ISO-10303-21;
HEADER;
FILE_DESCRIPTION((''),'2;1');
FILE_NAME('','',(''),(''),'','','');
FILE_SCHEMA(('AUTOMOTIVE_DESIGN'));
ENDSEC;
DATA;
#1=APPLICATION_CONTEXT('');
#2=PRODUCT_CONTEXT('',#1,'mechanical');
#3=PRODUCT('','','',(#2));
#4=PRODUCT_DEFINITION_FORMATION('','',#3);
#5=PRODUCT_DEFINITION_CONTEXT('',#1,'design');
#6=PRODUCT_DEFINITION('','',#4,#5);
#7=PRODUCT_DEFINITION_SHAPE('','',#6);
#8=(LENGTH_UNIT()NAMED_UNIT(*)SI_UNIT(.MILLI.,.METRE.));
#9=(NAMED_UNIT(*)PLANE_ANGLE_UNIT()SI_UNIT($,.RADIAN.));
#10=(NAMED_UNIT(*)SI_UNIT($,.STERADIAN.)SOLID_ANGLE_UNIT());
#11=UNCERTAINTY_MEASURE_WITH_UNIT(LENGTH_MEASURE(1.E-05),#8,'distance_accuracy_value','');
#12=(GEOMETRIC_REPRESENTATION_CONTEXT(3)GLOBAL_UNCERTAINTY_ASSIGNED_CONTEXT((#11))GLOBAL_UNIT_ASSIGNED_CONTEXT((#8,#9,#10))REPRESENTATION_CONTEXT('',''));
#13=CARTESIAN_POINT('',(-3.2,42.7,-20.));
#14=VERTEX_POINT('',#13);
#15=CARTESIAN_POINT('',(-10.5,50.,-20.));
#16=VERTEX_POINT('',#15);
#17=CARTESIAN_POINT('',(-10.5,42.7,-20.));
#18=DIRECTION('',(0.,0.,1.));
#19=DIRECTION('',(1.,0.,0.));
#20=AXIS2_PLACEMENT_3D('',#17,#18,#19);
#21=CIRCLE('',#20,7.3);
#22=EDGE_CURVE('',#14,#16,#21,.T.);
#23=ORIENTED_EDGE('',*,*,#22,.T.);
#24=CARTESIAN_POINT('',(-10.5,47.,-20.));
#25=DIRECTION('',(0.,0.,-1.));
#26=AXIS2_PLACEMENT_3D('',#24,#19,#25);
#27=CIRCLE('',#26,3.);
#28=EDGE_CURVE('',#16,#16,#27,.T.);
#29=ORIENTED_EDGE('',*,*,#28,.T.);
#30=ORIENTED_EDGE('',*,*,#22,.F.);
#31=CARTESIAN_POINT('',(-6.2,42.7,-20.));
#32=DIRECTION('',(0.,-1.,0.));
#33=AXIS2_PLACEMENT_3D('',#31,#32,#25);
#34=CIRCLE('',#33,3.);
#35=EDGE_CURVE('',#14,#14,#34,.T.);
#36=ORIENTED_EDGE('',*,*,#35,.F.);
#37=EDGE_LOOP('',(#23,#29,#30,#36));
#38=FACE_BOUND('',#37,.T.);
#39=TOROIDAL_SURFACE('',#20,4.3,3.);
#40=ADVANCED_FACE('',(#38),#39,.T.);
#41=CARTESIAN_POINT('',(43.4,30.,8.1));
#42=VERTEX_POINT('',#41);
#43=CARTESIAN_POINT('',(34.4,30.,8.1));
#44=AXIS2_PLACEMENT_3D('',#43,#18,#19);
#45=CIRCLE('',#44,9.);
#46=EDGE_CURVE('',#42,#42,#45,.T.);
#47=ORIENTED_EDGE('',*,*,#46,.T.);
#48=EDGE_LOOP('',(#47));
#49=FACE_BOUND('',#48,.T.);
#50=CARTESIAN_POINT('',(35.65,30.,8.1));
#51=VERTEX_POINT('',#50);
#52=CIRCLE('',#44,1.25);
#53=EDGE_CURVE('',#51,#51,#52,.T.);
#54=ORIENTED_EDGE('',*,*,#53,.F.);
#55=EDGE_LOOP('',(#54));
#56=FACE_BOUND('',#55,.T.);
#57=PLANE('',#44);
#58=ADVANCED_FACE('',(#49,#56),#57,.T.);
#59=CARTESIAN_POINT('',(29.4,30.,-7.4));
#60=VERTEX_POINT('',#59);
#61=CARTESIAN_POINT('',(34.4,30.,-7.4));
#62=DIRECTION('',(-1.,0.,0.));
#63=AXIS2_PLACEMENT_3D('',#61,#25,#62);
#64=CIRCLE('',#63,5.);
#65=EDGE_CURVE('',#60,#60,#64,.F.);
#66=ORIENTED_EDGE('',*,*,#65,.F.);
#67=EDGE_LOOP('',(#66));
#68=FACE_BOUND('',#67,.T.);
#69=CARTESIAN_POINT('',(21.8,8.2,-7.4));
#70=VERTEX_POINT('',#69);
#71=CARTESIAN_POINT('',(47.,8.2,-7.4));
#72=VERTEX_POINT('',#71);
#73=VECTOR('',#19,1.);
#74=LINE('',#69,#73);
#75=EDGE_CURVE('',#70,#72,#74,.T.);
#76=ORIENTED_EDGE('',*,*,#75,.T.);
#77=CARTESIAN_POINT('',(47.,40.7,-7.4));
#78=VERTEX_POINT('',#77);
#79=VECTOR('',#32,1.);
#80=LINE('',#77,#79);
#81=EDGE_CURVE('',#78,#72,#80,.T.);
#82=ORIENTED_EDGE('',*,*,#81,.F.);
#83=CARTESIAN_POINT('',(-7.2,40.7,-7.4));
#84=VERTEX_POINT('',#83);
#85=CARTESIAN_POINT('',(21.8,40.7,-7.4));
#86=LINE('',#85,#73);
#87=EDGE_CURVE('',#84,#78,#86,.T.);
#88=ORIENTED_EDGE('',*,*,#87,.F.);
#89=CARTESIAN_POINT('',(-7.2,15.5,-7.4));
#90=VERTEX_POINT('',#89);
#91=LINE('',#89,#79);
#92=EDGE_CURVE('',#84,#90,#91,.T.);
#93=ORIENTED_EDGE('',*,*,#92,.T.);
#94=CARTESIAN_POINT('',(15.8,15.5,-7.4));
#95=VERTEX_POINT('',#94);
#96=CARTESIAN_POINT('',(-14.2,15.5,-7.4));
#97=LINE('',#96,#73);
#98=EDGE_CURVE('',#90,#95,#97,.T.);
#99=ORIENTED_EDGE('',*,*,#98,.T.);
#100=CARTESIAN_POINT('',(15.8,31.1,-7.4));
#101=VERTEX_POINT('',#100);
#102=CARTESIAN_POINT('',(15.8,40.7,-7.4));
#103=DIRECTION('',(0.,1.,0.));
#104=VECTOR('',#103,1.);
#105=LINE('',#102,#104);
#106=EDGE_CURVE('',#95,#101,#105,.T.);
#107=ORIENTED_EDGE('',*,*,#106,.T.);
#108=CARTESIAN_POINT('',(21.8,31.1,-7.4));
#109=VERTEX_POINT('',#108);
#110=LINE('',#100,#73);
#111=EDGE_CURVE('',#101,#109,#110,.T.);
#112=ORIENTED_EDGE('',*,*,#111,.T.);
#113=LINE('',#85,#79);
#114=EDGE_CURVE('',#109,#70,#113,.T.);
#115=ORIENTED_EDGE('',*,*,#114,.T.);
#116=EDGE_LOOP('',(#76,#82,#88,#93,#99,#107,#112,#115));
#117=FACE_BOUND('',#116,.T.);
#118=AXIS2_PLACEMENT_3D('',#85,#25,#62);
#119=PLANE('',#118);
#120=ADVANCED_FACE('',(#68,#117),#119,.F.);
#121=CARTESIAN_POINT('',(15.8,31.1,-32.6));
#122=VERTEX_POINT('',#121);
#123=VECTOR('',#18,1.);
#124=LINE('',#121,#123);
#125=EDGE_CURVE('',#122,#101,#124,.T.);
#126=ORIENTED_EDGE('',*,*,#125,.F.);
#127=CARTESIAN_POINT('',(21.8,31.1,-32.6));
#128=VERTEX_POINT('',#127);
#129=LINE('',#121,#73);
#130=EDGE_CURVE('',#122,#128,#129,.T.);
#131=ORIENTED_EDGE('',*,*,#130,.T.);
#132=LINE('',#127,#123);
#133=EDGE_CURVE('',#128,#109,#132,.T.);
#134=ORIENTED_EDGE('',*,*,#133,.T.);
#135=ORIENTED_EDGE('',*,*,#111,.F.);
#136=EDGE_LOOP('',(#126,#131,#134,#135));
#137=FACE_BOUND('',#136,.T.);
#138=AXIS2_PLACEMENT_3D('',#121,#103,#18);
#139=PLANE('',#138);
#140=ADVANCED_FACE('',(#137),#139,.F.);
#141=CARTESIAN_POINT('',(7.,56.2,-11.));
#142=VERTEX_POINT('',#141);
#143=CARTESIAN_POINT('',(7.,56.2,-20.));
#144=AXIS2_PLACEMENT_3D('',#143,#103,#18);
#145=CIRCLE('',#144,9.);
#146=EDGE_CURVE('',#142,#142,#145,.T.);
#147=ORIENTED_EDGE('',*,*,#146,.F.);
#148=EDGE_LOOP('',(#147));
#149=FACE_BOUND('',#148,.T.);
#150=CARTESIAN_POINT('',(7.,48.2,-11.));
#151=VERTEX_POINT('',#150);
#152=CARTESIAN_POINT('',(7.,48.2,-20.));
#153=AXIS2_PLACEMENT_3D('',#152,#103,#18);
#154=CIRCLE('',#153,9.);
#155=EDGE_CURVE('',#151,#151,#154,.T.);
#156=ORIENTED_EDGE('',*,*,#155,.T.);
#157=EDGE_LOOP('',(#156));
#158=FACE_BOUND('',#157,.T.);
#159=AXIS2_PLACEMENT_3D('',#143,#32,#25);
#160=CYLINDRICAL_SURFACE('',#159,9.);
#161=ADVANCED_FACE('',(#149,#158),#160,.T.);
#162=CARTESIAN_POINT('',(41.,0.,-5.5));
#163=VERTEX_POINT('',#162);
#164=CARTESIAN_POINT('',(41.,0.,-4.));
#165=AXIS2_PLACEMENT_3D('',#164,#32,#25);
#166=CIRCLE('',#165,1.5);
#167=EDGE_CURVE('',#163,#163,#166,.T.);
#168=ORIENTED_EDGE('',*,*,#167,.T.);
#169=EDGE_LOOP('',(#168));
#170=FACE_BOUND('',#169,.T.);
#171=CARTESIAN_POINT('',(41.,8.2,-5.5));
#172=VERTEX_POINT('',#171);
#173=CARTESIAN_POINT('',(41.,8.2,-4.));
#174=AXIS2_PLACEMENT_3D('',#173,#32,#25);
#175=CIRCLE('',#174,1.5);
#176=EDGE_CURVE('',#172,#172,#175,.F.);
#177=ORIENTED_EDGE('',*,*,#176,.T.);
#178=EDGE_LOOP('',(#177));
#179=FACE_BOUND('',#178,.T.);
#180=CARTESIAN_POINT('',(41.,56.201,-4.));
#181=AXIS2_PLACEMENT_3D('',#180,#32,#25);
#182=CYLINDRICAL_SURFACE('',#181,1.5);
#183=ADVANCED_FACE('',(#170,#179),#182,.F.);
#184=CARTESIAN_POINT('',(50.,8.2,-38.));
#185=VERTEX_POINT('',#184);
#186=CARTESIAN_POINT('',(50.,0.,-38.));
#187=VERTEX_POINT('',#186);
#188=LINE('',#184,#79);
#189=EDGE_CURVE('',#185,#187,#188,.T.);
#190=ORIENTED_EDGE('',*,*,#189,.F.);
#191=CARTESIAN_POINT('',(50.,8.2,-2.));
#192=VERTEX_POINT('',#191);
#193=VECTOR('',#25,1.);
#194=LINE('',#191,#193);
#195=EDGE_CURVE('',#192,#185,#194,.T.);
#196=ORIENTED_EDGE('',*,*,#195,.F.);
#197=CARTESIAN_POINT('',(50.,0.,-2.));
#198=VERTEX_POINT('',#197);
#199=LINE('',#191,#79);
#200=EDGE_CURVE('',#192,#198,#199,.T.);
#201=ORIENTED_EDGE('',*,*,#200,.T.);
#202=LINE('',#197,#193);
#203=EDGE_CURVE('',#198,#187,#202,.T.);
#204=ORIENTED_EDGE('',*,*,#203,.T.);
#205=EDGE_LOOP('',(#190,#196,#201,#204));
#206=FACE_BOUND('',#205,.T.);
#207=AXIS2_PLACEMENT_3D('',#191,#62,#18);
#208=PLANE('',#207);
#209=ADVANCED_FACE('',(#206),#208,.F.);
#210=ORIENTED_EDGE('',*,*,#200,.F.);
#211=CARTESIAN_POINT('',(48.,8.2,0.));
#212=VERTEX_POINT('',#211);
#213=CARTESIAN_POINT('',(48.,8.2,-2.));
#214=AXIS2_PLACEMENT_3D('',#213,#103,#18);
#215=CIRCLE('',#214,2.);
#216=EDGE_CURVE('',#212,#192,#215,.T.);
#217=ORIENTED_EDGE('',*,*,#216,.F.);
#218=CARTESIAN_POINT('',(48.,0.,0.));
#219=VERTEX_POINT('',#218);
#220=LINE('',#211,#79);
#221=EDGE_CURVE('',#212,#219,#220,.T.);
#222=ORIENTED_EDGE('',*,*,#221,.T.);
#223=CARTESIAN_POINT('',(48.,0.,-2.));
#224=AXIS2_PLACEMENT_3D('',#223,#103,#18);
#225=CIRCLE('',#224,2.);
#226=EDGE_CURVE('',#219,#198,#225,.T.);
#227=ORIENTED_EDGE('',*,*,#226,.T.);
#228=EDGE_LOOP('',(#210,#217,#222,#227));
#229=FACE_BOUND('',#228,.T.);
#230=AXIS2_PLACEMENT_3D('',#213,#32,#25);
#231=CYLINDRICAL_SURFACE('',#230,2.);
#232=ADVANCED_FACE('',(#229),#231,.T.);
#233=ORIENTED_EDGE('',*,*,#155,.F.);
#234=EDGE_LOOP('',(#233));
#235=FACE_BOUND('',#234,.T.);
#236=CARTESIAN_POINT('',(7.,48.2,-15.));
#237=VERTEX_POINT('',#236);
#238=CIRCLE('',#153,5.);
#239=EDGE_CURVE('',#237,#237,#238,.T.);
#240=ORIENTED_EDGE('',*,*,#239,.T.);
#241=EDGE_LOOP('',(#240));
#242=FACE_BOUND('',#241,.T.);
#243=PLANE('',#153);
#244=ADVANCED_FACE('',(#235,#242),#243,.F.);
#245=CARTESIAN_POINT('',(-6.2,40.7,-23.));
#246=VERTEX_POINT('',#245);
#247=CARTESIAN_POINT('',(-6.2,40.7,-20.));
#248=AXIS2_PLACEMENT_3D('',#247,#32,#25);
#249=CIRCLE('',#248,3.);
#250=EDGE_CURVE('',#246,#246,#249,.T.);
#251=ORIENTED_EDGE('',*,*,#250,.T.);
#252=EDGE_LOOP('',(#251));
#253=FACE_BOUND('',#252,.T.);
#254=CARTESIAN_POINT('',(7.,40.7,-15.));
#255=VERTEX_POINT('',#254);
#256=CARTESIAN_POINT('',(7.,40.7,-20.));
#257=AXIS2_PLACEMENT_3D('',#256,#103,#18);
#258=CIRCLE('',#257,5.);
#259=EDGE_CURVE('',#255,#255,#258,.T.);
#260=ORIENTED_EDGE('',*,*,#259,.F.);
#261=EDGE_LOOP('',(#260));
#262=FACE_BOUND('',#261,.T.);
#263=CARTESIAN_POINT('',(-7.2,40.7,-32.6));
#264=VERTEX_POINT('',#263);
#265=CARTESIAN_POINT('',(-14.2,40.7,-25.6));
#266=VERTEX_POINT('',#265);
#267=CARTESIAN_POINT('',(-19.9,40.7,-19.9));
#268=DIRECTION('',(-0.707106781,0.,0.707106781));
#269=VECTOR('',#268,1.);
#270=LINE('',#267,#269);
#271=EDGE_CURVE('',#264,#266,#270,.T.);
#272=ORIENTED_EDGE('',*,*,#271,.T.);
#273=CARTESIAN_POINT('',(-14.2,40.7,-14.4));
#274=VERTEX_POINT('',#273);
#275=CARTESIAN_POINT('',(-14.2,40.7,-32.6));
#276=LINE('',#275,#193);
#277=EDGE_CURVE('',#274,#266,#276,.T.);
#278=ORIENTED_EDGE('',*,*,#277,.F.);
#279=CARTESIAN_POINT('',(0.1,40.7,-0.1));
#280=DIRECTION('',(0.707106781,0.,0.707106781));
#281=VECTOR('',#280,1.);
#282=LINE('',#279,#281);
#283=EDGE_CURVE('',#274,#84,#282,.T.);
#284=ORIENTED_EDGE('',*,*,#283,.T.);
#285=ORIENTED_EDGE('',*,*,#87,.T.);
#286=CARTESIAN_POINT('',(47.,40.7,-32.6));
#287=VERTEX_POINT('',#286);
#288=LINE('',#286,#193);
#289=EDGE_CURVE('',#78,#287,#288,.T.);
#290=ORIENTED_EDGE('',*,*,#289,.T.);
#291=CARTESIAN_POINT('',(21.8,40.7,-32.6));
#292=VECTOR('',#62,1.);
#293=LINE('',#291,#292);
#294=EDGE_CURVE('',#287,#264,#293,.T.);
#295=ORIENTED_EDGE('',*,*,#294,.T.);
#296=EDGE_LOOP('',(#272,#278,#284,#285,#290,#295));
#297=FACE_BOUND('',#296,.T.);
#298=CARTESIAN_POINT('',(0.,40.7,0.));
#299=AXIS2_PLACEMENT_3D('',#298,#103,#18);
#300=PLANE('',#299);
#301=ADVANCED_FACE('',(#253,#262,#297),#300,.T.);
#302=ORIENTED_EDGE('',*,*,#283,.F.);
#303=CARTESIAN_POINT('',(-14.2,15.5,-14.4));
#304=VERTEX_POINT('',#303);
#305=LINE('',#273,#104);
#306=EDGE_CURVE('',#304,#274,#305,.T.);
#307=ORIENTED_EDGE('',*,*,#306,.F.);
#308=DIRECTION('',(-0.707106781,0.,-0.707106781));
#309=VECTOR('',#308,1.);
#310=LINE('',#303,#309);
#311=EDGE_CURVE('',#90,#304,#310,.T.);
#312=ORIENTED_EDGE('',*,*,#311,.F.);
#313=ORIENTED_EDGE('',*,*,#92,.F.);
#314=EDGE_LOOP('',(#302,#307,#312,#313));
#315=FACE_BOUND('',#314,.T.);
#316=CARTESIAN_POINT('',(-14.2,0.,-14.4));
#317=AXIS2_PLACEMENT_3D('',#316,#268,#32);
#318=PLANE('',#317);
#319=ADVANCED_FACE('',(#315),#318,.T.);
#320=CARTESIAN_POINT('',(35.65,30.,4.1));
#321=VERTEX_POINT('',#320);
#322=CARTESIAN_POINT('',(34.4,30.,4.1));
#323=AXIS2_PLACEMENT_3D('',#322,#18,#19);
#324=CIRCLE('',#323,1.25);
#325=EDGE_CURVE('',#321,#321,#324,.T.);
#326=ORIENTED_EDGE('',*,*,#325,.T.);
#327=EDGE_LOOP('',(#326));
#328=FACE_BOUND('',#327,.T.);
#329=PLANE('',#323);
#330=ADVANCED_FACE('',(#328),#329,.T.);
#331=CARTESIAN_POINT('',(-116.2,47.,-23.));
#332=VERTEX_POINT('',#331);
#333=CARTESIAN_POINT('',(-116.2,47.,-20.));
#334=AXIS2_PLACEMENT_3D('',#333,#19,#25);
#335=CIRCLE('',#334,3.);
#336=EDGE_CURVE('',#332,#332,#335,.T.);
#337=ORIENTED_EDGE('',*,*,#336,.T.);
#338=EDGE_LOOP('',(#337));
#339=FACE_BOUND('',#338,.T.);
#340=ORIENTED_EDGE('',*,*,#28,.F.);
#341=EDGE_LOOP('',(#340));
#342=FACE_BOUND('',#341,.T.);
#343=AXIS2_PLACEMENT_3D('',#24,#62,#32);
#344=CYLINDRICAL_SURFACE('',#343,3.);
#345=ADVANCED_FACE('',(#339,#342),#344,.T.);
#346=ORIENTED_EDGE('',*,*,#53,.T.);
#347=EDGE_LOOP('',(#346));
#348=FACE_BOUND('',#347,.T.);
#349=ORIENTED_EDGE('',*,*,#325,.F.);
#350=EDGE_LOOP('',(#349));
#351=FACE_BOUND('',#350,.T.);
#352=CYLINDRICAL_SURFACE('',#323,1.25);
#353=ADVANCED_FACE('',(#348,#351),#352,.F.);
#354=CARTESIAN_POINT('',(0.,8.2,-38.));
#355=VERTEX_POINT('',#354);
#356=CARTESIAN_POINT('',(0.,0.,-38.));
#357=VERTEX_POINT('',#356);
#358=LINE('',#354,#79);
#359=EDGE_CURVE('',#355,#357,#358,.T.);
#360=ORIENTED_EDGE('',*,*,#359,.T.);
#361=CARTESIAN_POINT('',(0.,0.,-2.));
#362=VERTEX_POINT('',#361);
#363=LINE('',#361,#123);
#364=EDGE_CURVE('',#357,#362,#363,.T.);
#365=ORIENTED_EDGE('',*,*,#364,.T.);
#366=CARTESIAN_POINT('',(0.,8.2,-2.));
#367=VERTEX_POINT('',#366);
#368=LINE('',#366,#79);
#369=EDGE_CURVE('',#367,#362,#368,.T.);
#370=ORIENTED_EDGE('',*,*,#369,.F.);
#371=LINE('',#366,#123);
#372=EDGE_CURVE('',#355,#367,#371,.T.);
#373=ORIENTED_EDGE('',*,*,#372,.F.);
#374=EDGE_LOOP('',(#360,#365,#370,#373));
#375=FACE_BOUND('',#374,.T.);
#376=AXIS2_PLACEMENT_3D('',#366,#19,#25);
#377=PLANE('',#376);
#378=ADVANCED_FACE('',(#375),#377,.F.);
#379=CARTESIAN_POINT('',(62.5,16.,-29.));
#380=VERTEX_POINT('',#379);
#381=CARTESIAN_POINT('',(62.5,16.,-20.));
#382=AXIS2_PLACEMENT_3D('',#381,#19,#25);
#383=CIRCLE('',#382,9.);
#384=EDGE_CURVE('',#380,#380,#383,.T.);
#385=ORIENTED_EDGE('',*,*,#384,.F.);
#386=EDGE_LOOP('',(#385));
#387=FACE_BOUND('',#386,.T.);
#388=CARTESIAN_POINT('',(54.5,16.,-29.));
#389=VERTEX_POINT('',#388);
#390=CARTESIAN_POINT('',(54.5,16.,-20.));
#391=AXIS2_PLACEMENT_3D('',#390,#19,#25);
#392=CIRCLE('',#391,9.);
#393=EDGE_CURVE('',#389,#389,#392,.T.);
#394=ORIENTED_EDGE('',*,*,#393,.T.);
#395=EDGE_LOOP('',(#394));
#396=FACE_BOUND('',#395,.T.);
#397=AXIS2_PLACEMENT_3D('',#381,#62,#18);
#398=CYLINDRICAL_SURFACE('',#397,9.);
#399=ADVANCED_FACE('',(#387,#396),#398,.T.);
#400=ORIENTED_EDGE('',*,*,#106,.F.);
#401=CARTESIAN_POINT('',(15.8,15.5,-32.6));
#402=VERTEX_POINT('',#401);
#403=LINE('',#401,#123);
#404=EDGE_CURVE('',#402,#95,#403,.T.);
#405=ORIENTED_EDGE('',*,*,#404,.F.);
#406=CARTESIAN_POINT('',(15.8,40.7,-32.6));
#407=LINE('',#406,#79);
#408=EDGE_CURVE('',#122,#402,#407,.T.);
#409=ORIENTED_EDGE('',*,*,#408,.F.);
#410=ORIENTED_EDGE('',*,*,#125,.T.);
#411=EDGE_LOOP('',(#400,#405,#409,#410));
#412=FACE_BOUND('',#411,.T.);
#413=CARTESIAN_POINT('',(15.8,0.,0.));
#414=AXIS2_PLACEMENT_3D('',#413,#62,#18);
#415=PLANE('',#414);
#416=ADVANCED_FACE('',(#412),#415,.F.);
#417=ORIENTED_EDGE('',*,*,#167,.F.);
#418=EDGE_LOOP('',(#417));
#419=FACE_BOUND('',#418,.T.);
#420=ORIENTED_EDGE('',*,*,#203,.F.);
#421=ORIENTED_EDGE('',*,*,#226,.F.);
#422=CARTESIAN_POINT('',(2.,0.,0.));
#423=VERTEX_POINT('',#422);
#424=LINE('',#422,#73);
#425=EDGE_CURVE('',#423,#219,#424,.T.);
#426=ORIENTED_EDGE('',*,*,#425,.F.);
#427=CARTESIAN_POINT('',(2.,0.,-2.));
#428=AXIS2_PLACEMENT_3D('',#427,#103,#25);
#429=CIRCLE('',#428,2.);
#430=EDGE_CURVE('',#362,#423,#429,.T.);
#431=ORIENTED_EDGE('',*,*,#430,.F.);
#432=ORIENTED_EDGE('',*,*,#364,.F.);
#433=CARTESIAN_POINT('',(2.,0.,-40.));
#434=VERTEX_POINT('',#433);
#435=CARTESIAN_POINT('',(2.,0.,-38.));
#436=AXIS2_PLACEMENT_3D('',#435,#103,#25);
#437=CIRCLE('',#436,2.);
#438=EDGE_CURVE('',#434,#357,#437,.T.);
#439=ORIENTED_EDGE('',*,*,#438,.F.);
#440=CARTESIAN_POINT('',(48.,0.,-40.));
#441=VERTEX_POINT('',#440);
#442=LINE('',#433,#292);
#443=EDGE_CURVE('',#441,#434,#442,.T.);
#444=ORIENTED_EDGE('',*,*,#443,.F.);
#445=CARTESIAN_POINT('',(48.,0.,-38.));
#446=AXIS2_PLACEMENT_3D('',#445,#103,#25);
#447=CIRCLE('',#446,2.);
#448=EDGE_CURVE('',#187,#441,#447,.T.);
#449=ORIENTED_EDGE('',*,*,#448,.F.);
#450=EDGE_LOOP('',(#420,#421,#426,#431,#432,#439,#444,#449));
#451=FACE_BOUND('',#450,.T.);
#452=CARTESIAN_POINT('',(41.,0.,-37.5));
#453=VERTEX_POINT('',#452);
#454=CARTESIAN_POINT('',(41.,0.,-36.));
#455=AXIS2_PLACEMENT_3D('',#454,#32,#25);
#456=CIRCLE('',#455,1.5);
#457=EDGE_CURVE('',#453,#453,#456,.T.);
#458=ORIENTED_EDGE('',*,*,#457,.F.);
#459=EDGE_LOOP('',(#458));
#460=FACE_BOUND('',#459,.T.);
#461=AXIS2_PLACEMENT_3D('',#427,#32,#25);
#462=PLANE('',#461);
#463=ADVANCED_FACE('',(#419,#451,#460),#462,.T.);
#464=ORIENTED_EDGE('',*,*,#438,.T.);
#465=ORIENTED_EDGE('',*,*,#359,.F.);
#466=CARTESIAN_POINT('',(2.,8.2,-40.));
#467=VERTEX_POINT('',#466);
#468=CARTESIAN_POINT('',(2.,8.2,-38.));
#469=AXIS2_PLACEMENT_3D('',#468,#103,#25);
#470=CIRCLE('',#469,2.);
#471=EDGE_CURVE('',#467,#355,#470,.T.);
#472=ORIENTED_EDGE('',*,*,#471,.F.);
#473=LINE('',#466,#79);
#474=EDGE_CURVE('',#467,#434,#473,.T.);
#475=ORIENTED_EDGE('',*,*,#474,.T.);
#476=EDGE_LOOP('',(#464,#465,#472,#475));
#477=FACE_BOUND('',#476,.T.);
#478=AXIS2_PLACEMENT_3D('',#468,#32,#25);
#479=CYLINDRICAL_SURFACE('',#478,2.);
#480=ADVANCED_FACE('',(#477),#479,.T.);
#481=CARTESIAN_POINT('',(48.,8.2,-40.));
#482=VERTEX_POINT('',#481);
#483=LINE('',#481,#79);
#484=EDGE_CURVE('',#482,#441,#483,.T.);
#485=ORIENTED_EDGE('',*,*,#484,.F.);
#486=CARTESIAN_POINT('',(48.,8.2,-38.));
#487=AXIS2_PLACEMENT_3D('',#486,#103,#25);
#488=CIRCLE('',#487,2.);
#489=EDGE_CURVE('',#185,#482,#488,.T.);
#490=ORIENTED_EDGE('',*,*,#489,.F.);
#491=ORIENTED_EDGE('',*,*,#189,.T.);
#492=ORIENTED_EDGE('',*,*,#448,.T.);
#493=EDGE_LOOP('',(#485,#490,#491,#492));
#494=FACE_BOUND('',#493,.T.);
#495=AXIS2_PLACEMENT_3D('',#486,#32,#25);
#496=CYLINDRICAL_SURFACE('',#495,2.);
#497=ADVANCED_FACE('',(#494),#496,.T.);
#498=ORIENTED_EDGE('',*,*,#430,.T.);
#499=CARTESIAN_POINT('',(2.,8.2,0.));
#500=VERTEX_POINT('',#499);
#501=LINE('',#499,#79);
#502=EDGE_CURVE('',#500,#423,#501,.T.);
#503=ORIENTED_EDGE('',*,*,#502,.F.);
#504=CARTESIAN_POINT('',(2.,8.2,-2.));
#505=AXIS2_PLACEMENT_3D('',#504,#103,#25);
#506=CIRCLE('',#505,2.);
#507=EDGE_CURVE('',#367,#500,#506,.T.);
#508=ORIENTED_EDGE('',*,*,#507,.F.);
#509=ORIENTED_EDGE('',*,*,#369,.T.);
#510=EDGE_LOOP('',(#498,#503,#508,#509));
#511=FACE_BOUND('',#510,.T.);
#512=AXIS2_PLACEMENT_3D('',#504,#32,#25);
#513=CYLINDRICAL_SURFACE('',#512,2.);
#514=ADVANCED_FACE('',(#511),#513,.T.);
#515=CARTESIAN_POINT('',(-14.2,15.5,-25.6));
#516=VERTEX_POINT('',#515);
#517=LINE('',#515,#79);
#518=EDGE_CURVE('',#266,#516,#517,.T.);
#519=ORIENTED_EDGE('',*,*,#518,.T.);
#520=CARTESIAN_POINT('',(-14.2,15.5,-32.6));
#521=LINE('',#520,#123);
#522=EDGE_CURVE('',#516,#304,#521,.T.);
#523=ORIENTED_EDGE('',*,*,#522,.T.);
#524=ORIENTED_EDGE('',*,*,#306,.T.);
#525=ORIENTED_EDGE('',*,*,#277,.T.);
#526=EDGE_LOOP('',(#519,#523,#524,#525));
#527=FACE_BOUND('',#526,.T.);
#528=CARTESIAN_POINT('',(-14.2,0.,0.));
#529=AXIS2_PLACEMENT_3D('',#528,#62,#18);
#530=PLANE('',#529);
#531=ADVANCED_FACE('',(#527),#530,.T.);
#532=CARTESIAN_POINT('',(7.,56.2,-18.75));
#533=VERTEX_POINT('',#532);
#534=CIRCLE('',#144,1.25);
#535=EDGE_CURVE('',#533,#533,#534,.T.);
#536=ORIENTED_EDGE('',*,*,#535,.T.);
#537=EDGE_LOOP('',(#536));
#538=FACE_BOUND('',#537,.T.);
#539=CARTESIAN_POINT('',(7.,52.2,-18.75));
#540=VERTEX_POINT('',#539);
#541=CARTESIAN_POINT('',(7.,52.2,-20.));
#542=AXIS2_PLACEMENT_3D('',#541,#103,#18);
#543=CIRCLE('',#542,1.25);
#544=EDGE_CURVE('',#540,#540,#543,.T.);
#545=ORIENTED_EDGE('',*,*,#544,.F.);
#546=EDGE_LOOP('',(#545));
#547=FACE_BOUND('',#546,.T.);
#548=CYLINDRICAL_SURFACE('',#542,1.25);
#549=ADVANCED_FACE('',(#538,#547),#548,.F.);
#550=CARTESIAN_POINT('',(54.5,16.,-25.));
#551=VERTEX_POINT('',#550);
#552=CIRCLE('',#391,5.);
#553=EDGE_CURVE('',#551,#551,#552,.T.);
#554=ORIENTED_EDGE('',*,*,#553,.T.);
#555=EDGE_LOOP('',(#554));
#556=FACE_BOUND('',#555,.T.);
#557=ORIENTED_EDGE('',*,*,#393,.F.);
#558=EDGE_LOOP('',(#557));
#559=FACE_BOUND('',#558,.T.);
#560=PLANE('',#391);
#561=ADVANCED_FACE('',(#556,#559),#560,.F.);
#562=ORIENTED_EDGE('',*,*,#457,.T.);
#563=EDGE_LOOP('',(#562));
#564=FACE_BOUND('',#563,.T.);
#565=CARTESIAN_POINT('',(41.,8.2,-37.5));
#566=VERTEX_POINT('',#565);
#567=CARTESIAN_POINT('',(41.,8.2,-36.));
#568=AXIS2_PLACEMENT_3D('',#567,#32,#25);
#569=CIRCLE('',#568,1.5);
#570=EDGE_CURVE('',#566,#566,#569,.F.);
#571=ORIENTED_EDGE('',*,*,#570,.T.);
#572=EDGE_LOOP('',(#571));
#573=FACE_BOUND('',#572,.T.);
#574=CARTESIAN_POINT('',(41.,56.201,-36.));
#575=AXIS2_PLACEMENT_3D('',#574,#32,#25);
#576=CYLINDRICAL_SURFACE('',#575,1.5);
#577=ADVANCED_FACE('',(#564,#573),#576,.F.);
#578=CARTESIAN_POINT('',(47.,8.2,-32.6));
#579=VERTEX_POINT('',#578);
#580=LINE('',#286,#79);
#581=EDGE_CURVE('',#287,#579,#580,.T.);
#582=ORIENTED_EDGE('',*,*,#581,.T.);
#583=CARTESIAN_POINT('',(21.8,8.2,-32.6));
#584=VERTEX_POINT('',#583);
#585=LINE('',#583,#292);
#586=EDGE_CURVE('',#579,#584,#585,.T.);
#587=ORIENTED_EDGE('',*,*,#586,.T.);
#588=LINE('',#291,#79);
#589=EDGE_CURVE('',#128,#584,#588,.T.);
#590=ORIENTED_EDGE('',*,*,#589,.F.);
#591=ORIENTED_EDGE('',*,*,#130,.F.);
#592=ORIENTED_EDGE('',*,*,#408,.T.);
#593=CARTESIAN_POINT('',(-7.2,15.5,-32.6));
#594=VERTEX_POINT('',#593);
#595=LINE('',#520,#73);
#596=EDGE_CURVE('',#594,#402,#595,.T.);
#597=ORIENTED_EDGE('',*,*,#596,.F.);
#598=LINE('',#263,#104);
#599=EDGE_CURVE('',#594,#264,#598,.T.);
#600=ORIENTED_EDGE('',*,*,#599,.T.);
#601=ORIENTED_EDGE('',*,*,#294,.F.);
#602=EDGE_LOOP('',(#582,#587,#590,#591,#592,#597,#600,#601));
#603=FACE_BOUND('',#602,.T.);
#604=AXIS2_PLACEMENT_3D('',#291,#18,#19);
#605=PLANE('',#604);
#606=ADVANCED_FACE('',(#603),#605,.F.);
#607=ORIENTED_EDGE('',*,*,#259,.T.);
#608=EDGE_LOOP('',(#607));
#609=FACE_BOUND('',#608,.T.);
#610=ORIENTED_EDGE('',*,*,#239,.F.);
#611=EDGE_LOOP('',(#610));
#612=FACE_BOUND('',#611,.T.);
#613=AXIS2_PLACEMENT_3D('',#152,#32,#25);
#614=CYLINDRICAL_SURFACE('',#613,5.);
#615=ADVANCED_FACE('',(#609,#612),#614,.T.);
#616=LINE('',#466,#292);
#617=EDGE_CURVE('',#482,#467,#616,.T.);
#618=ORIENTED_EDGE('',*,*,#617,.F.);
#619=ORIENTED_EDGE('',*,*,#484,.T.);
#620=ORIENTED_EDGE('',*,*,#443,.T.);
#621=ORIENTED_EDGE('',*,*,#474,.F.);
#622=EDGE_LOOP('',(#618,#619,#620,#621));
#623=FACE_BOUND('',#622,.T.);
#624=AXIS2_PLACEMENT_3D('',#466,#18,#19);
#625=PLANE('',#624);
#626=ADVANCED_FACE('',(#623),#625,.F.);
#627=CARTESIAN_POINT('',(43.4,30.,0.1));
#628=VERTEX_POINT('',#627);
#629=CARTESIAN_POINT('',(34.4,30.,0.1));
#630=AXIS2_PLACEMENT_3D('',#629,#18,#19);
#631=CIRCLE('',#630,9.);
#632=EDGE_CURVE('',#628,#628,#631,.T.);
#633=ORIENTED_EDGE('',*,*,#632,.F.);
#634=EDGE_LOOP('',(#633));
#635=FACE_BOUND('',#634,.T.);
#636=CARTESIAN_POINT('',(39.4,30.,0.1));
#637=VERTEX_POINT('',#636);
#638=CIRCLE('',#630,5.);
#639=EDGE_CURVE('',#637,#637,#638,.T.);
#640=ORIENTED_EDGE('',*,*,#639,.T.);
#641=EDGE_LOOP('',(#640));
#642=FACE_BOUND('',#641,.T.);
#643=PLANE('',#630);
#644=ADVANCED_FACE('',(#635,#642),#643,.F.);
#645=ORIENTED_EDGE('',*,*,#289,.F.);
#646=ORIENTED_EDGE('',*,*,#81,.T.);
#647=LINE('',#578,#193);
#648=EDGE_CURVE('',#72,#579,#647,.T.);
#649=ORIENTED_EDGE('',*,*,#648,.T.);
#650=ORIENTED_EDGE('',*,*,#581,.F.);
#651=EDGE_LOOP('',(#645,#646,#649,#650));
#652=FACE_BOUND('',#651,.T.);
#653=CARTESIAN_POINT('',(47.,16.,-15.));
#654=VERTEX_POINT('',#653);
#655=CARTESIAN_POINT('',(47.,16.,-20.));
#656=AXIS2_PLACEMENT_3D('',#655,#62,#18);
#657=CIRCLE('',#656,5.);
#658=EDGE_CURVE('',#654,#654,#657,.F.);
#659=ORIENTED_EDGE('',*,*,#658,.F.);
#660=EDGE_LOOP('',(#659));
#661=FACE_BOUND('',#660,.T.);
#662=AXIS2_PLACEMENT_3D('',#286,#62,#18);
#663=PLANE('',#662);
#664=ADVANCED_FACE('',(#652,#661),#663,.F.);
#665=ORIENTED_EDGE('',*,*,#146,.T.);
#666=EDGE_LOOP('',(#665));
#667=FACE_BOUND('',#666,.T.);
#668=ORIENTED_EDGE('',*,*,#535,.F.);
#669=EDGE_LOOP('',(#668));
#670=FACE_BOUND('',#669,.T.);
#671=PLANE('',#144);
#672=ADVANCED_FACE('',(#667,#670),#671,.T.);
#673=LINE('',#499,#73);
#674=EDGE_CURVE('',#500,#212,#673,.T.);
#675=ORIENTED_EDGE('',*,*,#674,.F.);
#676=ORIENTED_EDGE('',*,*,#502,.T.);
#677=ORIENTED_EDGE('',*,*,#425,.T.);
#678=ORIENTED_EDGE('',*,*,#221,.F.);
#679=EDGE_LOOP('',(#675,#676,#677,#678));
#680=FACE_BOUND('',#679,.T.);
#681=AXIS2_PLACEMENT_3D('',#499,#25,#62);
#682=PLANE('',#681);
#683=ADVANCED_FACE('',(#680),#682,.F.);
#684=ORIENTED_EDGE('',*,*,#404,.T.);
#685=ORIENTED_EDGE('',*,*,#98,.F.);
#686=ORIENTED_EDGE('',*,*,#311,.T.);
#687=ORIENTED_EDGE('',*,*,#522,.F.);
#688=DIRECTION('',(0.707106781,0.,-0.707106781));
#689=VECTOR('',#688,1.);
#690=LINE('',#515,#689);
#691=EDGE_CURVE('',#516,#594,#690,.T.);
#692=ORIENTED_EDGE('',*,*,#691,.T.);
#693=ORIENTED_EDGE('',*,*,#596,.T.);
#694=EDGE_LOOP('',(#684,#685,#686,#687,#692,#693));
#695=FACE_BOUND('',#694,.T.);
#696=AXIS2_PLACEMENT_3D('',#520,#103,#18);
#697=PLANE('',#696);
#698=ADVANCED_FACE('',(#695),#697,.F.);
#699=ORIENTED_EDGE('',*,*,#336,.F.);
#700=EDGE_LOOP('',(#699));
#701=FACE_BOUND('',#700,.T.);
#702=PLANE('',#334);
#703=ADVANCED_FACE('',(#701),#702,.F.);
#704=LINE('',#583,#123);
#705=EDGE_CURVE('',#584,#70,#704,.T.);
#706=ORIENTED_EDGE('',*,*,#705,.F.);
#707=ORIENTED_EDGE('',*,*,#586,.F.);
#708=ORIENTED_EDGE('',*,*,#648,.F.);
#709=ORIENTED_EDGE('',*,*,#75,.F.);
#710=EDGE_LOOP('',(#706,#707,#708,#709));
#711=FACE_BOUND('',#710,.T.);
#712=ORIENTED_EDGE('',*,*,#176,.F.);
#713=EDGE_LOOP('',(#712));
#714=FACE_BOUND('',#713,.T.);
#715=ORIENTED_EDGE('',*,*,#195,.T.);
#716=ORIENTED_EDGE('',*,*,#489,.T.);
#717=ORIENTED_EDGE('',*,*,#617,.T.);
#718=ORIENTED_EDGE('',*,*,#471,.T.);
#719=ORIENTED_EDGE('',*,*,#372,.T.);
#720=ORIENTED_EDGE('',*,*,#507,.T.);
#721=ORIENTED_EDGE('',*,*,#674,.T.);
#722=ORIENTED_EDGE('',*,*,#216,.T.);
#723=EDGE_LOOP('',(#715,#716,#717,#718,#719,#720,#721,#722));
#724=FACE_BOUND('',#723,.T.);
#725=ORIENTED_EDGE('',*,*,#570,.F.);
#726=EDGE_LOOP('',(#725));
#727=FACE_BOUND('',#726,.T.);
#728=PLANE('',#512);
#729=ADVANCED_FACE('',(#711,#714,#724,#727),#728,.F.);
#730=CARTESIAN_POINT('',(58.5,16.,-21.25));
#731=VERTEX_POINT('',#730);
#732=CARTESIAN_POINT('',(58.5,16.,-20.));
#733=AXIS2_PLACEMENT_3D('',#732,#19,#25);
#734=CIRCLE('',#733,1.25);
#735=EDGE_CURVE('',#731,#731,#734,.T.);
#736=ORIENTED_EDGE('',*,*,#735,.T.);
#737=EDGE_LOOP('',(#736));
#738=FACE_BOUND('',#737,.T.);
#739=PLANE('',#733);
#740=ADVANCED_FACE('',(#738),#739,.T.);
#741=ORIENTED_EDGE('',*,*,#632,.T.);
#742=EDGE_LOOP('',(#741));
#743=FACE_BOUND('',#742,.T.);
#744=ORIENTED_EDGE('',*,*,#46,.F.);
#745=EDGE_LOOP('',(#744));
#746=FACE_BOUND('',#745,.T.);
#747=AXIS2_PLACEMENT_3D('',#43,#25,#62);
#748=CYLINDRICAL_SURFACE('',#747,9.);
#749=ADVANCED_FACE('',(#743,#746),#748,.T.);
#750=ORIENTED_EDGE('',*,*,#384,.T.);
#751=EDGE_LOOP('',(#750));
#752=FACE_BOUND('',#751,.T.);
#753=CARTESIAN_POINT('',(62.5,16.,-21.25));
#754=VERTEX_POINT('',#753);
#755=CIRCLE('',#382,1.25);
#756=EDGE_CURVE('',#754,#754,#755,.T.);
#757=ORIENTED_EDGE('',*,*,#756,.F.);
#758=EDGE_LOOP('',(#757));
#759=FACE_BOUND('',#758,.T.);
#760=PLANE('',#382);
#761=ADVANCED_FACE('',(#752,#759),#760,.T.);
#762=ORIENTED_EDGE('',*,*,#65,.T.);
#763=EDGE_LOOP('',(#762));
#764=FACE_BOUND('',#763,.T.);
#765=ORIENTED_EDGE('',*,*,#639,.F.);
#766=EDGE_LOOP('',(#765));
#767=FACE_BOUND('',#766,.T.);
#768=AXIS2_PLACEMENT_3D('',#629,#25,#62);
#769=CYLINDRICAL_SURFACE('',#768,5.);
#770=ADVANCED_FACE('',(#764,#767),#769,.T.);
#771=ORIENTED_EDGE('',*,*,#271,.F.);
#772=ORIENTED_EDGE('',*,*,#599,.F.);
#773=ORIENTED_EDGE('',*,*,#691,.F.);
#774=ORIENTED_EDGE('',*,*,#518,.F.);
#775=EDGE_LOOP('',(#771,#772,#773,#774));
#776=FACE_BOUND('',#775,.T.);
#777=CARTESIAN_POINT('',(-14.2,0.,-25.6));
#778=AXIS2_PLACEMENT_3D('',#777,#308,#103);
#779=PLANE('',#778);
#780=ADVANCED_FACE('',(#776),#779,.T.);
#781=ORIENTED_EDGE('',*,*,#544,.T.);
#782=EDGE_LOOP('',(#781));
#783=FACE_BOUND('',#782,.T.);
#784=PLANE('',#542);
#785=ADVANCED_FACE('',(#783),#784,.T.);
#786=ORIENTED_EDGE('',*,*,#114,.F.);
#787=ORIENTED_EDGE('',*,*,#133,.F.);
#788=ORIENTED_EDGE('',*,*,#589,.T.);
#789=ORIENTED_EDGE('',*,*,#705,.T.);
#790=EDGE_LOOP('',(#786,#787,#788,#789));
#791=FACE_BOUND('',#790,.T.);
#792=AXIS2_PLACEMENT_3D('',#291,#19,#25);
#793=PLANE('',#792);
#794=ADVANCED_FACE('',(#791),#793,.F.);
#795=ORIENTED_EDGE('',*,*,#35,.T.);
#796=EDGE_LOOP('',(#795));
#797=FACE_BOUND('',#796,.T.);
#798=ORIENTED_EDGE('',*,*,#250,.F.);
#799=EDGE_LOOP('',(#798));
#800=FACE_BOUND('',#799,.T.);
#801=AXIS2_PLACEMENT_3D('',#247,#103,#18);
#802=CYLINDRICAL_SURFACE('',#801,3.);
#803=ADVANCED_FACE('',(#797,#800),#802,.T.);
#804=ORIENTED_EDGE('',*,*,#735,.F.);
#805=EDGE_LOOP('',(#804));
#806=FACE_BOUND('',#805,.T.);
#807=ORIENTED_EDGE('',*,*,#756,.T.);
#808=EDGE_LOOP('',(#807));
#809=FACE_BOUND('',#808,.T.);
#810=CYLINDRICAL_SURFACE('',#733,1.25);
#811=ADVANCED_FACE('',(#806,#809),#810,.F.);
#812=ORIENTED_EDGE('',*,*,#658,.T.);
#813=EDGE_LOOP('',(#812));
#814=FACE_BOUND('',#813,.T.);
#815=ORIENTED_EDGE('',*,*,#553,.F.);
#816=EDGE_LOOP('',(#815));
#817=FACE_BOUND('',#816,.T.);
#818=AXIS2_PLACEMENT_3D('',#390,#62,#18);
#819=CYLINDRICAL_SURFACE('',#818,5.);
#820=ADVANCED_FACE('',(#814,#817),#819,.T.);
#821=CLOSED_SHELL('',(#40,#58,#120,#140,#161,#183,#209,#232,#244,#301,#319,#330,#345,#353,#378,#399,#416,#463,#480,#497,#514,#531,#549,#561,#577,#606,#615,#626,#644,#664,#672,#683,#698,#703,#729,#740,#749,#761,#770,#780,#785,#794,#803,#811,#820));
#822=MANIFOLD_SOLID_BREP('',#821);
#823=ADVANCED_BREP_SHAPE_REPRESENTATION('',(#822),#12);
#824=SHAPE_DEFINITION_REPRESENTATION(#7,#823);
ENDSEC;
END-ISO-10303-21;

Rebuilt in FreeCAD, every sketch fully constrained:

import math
import FreeCAD as App
import Part
import Sketcher


def edges_at(feature, points):
    """Names of the edges that pass closest to the given points."""
    edges = feature.Shape.Edges
    near = lambda p: min(range(len(edges)), key=lambda i: edges[i].distToShape(Part.Vertex(*p))[0])
    return sorted({f"Edge{near(p) + 1}" for p in points})

doc = App.newDocument("Part")
body = doc.addObject("PartDesign::Body", "Body")

# Sketch on XZ plane
sketch1 = doc.addObject("Sketcher::SketchObject", "Sketch")
body.addObject(sketch1)
sketch1.AttachmentSupport = (doc.XZ_Plane, [""])
sketch1.MapMode = "FlatFace"
sketch1.addGeometry([
    Part.LineSegment(App.Vector(2, 0, 0), App.Vector(48, 0, 0)),  # 0
    Part.ArcOfCircle(Part.Circle(App.Vector(48, -2, 0), App.Vector(0, 0, 1), 2), math.radians(0), math.radians(90)),  # 1
    Part.LineSegment(App.Vector(50, -2, 0), App.Vector(50, -38, 0)),  # 2
    Part.ArcOfCircle(Part.Circle(App.Vector(48, -38, 0), App.Vector(0, 0, 1), 2), math.radians(-90), math.radians(0)),  # 3
    Part.LineSegment(App.Vector(48, -40, 0), App.Vector(2, -40, 0)),  # 4
    Part.ArcOfCircle(Part.Circle(App.Vector(2, -38, 0), App.Vector(0, 0, 1), 2), math.radians(-180), math.radians(-90)),  # 5
    Part.LineSegment(App.Vector(0, -38, 0), App.Vector(0, -2, 0)),  # 6
    Part.ArcOfCircle(Part.Circle(App.Vector(2, -2, 0), App.Vector(0, 0, 1), 2), math.radians(90), math.radians(180)),  # 7
], False)
sketch1.addConstraint([
    Sketcher.Constraint("Tangent", 0, 2, 1, 2),
    Sketcher.Constraint("Tangent", 1, 1, 2, 1),
    Sketcher.Constraint("Tangent", 2, 2, 3, 2),
    Sketcher.Constraint("Tangent", 3, 1, 4, 1),
    Sketcher.Constraint("Tangent", 4, 2, 5, 2),
    Sketcher.Constraint("Tangent", 5, 1, 6, 1),
    Sketcher.Constraint("Tangent", 6, 2, 7, 2),
    Sketcher.Constraint("Tangent", 7, 1, 0, 1),
    Sketcher.Constraint("Horizontal", 0),
    Sketcher.Constraint("Vertical", 2),
    Sketcher.Constraint("Horizontal", 4),
    Sketcher.Constraint("Vertical", 6),
    Sketcher.Constraint("Equal", 1, 3),
    Sketcher.Constraint("Equal", 3, 5),
    Sketcher.Constraint("Equal", 5, 7),
    Sketcher.Constraint("PointOnObject", 0, 2, -1),
    Sketcher.Constraint("PointOnObject", 5, 1, -2),
    Sketcher.Constraint("Radius", 1, 2.0),
    Sketcher.Constraint("DistanceX", 0, 1, 0, 2, 46.0),
    Sketcher.Constraint("DistanceY", 2, 2, 2, 1, 36.0),
])
pad1 = doc.addObject("PartDesign::Pad", "Pad")
body.addObject(pad1)
pad1.Profile = sketch1
pad1.Length = 8.2
pad1.Reversed = True

# Sketch on XZ plane
sketch2 = doc.addObject("Sketcher::SketchObject", "Sketch001")
body.addObject(sketch2)
sketch2.AttachmentSupport = (doc.XZ_Plane, [""])
sketch2.MapMode = "FlatFace"
sketch2.AttachmentOffset = App.Placement(App.Vector(0, 0, -8.2), App.Rotation())
sketch2.addGeometry([
    Part.LineSegment(App.Vector(22, -33, 0), App.Vector(22, -7, 0)),
    Part.LineSegment(App.Vector(22, -7, 0), App.Vector(47, -7, 0)),
    Part.LineSegment(App.Vector(47, -7, 0), App.Vector(47, -33, 0)),
    Part.LineSegment(App.Vector(47, -33, 0), App.Vector(22, -33, 0)),
], False)
sketch2.addConstraint([
    Sketcher.Constraint("Coincident", 0, 2, 1, 1),
    Sketcher.Constraint("Coincident", 1, 2, 2, 1),
    Sketcher.Constraint("Coincident", 2, 2, 3, 1),
    Sketcher.Constraint("Coincident", 3, 2, 0, 1),
    Sketcher.Constraint("Vertical", 0),
    Sketcher.Constraint("Horizontal", 1),
    Sketcher.Constraint("Vertical", 2),
    Sketcher.Constraint("Horizontal", 3),
    Sketcher.Constraint("Equal", 3, 0),
    Sketcher.Constraint("DistanceX", 1, 1, 1, 2, 25.2),
    Sketcher.Constraint("DistanceX", -1, 1, 1, 2, 47.0),
    Sketcher.Constraint("DistanceY", 0, 2, -1, 1, 7.4),
])
pad2 = doc.addObject("PartDesign::Pad", "Pad001")
body.addObject(pad2)
pad2.Profile = sketch2
pad2.Length = 32.5
pad2.Reversed = True

# Sketch on YZ plane
sketch3 = doc.addObject("Sketcher::SketchObject", "Sketch002")
body.addObject(sketch3)
sketch3.AttachmentSupport = (doc.YZ_Plane, [""])
sketch3.MapMode = "FlatFace"
sketch3.AttachmentOffset = App.Placement(App.Vector(0, 0, 21.8), App.Rotation())
sketch3.addGeometry([
    Part.LineSegment(App.Vector(41, -33, 0), App.Vector(31, -33, 0)),
    Part.LineSegment(App.Vector(31, -33, 0), App.Vector(31, -7, 0)),
    Part.LineSegment(App.Vector(31, -7, 0), App.Vector(41, -7, 0)),
    Part.LineSegment(App.Vector(41, -7, 0), App.Vector(41, -33, 0)),
], False)
sketch3.addConstraint([
    Sketcher.Constraint("Coincident", 0, 2, 1, 1),
    Sketcher.Constraint("Coincident", 1, 2, 2, 1),
    Sketcher.Constraint("Coincident", 2, 2, 3, 1),
    Sketcher.Constraint("Coincident", 3, 2, 0, 1),
    Sketcher.Constraint("Horizontal", 0),
    Sketcher.Constraint("Vertical", 1),
    Sketcher.Constraint("Horizontal", 2),
    Sketcher.Constraint("Vertical", 3),
    Sketcher.Constraint("DistanceX", 0, 2, 0, 1, 9.6),
    Sketcher.Constraint("DistanceY", 1, 1, 1, 2, 25.2),
    Sketcher.Constraint("DistanceX", -1, 1, 0, 2, 31.1),
    Sketcher.Constraint("DistanceY", 0, 2, -1, 1, 32.6),
])
pad3 = doc.addObject("PartDesign::Pad", "Pad002")
body.addObject(pad3)
pad3.Profile = sketch3
pad3.Length = 6
pad3.Reversed = True

# Sketch on YZ plane
sketch4 = doc.addObject("Sketcher::SketchObject", "Sketch003")
body.addObject(sketch4)
sketch4.AttachmentSupport = (doc.YZ_Plane, [""])
sketch4.MapMode = "FlatFace"
sketch4.AttachmentOffset = App.Placement(App.Vector(0, 0, 15.8), App.Rotation())
sketch4.addGeometry([
    Part.LineSegment(App.Vector(41, -33, 0), App.Vector(16, -33, 0)),
    Part.LineSegment(App.Vector(16, -33, 0), App.Vector(16, -7, 0)),
    Part.LineSegment(App.Vector(16, -7, 0), App.Vector(41, -7, 0)),
    Part.LineSegment(App.Vector(41, -7, 0), App.Vector(41, -33, 0)),
], False)
sketch4.addConstraint([
    Sketcher.Constraint("Coincident", 0, 2, 1, 1),
    Sketcher.Constraint("Coincident", 1, 2, 2, 1),
    Sketcher.Constraint("Coincident", 2, 2, 3, 1),
    Sketcher.Constraint("Coincident", 3, 2, 0, 1),
    Sketcher.Constraint("Horizontal", 0),
    Sketcher.Constraint("Vertical", 1),
    Sketcher.Constraint("Horizontal", 2),
    Sketcher.Constraint("Vertical", 3),
    Sketcher.Constraint("Equal", 2, 1),
    Sketcher.Constraint("DistanceX", 0, 2, 0, 1, 25.2),
    Sketcher.Constraint("DistanceX", -1, 1, 0, 2, 15.5),
    Sketcher.Constraint("DistanceY", 0, 2, -1, 1, 32.6),
])
pad4 = doc.addObject("PartDesign::Pad", "Pad003")
body.addObject(pad4)
pad4.Profile = sketch4
pad4.Length = 30
pad4.Reversed = True
doc.recompute()

chamfer = doc.addObject("PartDesign::Chamfer", "Chamfer")
body.addObject(chamfer)
chamfer.Base = (pad4, edges_at(pad4, [(-14.2, 28.1, -32.6), (-14.2, 28.1, -7.4)]))
chamfer.Size = 7

# Sketch on YZ plane
sketch5 = doc.addObject("Sketcher::SketchObject", "Sketch004")
body.addObject(sketch5)
sketch5.AttachmentSupport = (doc.YZ_Plane, [""])
sketch5.MapMode = "FlatFace"
sketch5.AttachmentOffset = App.Placement(App.Vector(0, 0, 47), App.Rotation())
sketch5.addGeometry(Part.Circle(App.Vector(16, -20, 0), App.Vector(0, 0, 1), 5), False)
sketch5.addConstraint([
    Sketcher.Constraint("Diameter", 0, 10.0),
    Sketcher.Constraint("DistanceX", -1, 1, 0, 3, 16.0),
    Sketcher.Constraint("DistanceY", 0, 3, -1, 1, 20.0),
])
pad5 = doc.addObject("PartDesign::Pad", "Pad004")
body.addObject(pad5)
pad5.Profile = sketch5
pad5.Length = 7.5

# Sketch on YZ plane
sketch6 = doc.addObject("Sketcher::SketchObject", "Sketch005")
body.addObject(sketch6)
sketch6.AttachmentSupport = (doc.YZ_Plane, [""])
sketch6.MapMode = "FlatFace"
sketch6.AttachmentOffset = App.Placement(App.Vector(0, 0, 54.5), App.Rotation())
sketch6.addGeometry(Part.Circle(App.Vector(16, -20, 0), App.Vector(0, 0, 1), 9), False)
sketch6.addConstraint([
    Sketcher.Constraint("Diameter", 0, 18.0),
    Sketcher.Constraint("DistanceX", -1, 1, 0, 3, 16.0),
    Sketcher.Constraint("DistanceY", 0, 3, -1, 1, 20.0),
])
pad6 = doc.addObject("PartDesign::Pad", "Pad005")
body.addObject(pad6)
pad6.Profile = sketch6
pad6.Length = 8

# Sketch on YZ plane
sketch7 = doc.addObject("Sketcher::SketchObject", "Sketch006")
body.addObject(sketch7)
sketch7.AttachmentSupport = (doc.YZ_Plane, [""])
sketch7.MapMode = "FlatFace"
sketch7.AttachmentOffset = App.Placement(App.Vector(0, 0, 62.5), App.Rotation())
sketch7.addGeometry(Part.Circle(App.Vector(16, -20, 0), App.Vector(0, 0, 1), 1.2), False)
sketch7.addConstraint([
    Sketcher.Constraint("Diameter", 0, 2.5),
    Sketcher.Constraint("DistanceX", -1, 1, 0, 3, 16.0),
    Sketcher.Constraint("DistanceY", 0, 3, -1, 1, 20.0),
])
pocket1 = doc.addObject("PartDesign::Pocket", "Pocket")
body.addObject(pocket1)
pocket1.Profile = sketch7
pocket1.Length = 4

# Sketch on XY plane
sketch8 = doc.addObject("Sketcher::SketchObject", "Sketch007")
body.addObject(sketch8)
sketch8.AttachmentSupport = (doc.XY_Plane, [""])
sketch8.MapMode = "FlatFace"
sketch8.AttachmentOffset = App.Placement(App.Vector(0, 0, -32.6), App.Rotation())
sketch8.addGeometry(Part.Circle(App.Vector(34, 30, 0), App.Vector(0, 0, 1), 5), False)
sketch8.addConstraint([
    Sketcher.Constraint("Diameter", 0, 10.0),
    Sketcher.Constraint("DistanceY", -1, 1, 0, 3, 30.0),
    Sketcher.Constraint("DistanceX", -1, 1, 0, 3, 34.4),
])
pad7 = doc.addObject("PartDesign::Pad", "Pad006")
body.addObject(pad7)
pad7.Profile = sketch8
pad7.Length = 7.5
pad7.Reversed = True

# Sketch on XY plane
sketch9 = doc.addObject("Sketcher::SketchObject", "Sketch008")
body.addObject(sketch9)
sketch9.AttachmentSupport = (doc.XY_Plane, [""])
sketch9.MapMode = "FlatFace"
sketch9.AttachmentOffset = App.Placement(App.Vector(0, 0, -40.1), App.Rotation())
sketch9.addGeometry(Part.Circle(App.Vector(34, 30, 0), App.Vector(0, 0, 1), 9), False)
sketch9.addConstraint([
    Sketcher.Constraint("Diameter", 0, 18.0),
    Sketcher.Constraint("DistanceY", -1, 1, 0, 3, 30.0),
    Sketcher.Constraint("DistanceX", -1, 1, 0, 3, 34.4),
])
pad8 = doc.addObject("PartDesign::Pad", "Pad007")
body.addObject(pad8)
pad8.Profile = sketch9
pad8.Length = 8
pad8.Reversed = True

# Sketch on XY plane
sketch10 = doc.addObject("Sketcher::SketchObject", "Sketch009")
body.addObject(sketch10)
sketch10.AttachmentSupport = (doc.XY_Plane, [""])
sketch10.MapMode = "FlatFace"
sketch10.AttachmentOffset = App.Placement(App.Vector(0, 0, -48.1), App.Rotation())
sketch10.addGeometry(Part.Circle(App.Vector(34.4, 30, 0), App.Vector(0, 0, 1), 1.2), False)
sketch10.addConstraint([
    Sketcher.Constraint("Diameter", 0, 2.5),
    Sketcher.Constraint("DistanceY", -1, 1, 0, 3, 30.0),
    Sketcher.Constraint("DistanceX", -1, 1, 0, 3, 34.4),
])
pocket2 = doc.addObject("PartDesign::Pocket", "Pocket001")
body.addObject(pocket2)
pocket2.Profile = sketch10
pocket2.Length = 4
pocket2.Reversed = True

# Sketch on XZ plane
sketch11 = doc.addObject("Sketcher::SketchObject", "Sketch010")
body.addObject(sketch11)
sketch11.AttachmentSupport = (doc.XZ_Plane, [""])
sketch11.MapMode = "FlatFace"
sketch11.AttachmentOffset = App.Placement(App.Vector(0, 0, -40.7), App.Rotation())
sketch11.addGeometry(Part.Circle(App.Vector(7, -20, 0), App.Vector(0, 0, 1), 5), False)
sketch11.addConstraint([
    Sketcher.Constraint("Diameter", 0, 10.0),
    Sketcher.Constraint("DistanceX", -1, 1, 0, 3, 7.0),
    Sketcher.Constraint("DistanceY", 0, 3, -1, 1, 20.0),
])
pad9 = doc.addObject("PartDesign::Pad", "Pad008")
body.addObject(pad9)
pad9.Profile = sketch11
pad9.Length = 7.5
pad9.Reversed = True

# Sketch on XZ plane
sketch12 = doc.addObject("Sketcher::SketchObject", "Sketch011")
body.addObject(sketch12)
sketch12.AttachmentSupport = (doc.XZ_Plane, [""])
sketch12.MapMode = "FlatFace"
sketch12.AttachmentOffset = App.Placement(App.Vector(0, 0, -48.2), App.Rotation())
sketch12.addGeometry(Part.Circle(App.Vector(7, -20, 0), App.Vector(0, 0, 1), 9), False)
sketch12.addConstraint([
    Sketcher.Constraint("Diameter", 0, 18.0),
    Sketcher.Constraint("DistanceX", -1, 1, 0, 3, 7.0),
    Sketcher.Constraint("DistanceY", 0, 3, -1, 1, 20.0),
])
pad10 = doc.addObject("PartDesign::Pad", "Pad009")
body.addObject(pad10)
pad10.Profile = sketch12
pad10.Length = 8
pad10.Reversed = True

# Sketch on XZ plane
sketch13 = doc.addObject("Sketcher::SketchObject", "Sketch012")
body.addObject(sketch13)
sketch13.AttachmentSupport = (doc.XZ_Plane, [""])
sketch13.MapMode = "FlatFace"
sketch13.AttachmentOffset = App.Placement(App.Vector(0, 0, -56.2), App.Rotation())
sketch13.addGeometry(Part.Circle(App.Vector(7, -20, 0), App.Vector(0, 0, 1), 1.2), False)
sketch13.addConstraint([
    Sketcher.Constraint("Diameter", 0, 2.5),
    Sketcher.Constraint("DistanceX", -1, 1, 0, 3, 7.0),
    Sketcher.Constraint("DistanceY", 0, 3, -1, 1, 20.0),
])
pocket3 = doc.addObject("PartDesign::Pocket", "Pocket002")
body.addObject(pocket3)
pocket3.Profile = sketch13
pocket3.Length = 4
pocket3.Reversed = True

# Sketch on YZ plane
sketch14 = doc.addObject("Sketcher::SketchObject", "Sketch013")
body.addObject(sketch14)
sketch14.AttachmentSupport = (doc.YZ_Plane, [""])
sketch14.MapMode = "FlatFace"
sketch14.AttachmentOffset = App.Placement(App.Vector(0, 0, -116.2), App.Rotation())
sketch14.addGeometry(Part.Circle(App.Vector(47, -20, 0), App.Vector(0, 0, 1), 3), False)
sketch14.addConstraint([
    Sketcher.Constraint("Diameter", 0, 6.0),
    Sketcher.Constraint("DistanceX", -1, 1, 0, 3, 47.0),
    Sketcher.Constraint("DistanceY", 0, 3, -1, 1, 20.0),
])

# Sketch on XY plane
sketch15 = doc.addObject("Sketcher::SketchObject", "Sketch014")
body.addObject(sketch15)
sketch15.AttachmentSupport = (doc.XY_Plane, [""])
sketch15.MapMode = "FlatFace"
sketch15.AttachmentOffset = App.Placement(App.Vector(0, 0, -20), App.Rotation())
sketch15.addGeometry([
    Part.LineSegment(App.Vector(-6.2, 40.7, 0), App.Vector(-6.2, 42.7, 0)),
    Part.ArcOfCircle(Part.Circle(App.Vector(-10.5, 42.7, 0), App.Vector(0, 0, 1), 4.3), math.radians(0), math.radians(90)),
    Part.LineSegment(App.Vector(-10.5, 47, 0), App.Vector(-116.2, 47, 0)),
], False)
sketch15.addConstraint([
    Sketcher.Constraint("Tangent", 0, 2, 1, 1),
    Sketcher.Constraint("Tangent", 1, 2, 2, 1),
    Sketcher.Constraint("Vertical", 0),
    Sketcher.Constraint("Horizontal", 2),
    Sketcher.Constraint("Radius", 1, 4.3),
    Sketcher.Constraint("DistanceY", 0, 1, 0, 2, 2.0),
    Sketcher.Constraint("DistanceX", 2, 2, 2, 1, 105.7),
    Sketcher.Constraint("DistanceY", -1, 1, 1, 2, 47.0),
    Sketcher.Constraint("DistanceX", 1, 3, -1, 1, 10.5),
])
doc.recompute()

additivepipe = doc.addObject("PartDesign::AdditivePipe", "AdditivePipe")
body.addObject(additivepipe)
additivepipe.Profile = sketch14
additivepipe.Spine = (sketch15, ["Edge1", "Edge2", "Edge3"])

# Sketch on XZ plane
sketch16 = doc.addObject("Sketcher::SketchObject", "Sketch015")
body.addObject(sketch16)
sketch16.AttachmentSupport = (doc.XZ_Plane, [""])
sketch16.MapMode = "FlatFace"
sketch16.addGeometry(Part.Circle(App.Vector(41, -4, 0), App.Vector(0, 0, 1), 1.5), False)
sketch16.addConstraint([
    Sketcher.Constraint("Diameter", 0, 3.0),
    Sketcher.Constraint("DistanceX", -1, 1, 0, 3, 41.0),
    Sketcher.Constraint("DistanceY", 0, 3, -1, 1, 4.0),
])
pocket4 = doc.addObject("PartDesign::Pocket", "Pocket003")
body.addObject(pocket4)
pocket4.Profile = sketch16
pocket4.Type = "UpToFirst"

# Sketch on XZ plane
sketch17 = doc.addObject("Sketcher::SketchObject", "Sketch016")
body.addObject(sketch17)
sketch17.AttachmentSupport = (doc.XZ_Plane, [""])
sketch17.MapMode = "FlatFace"
sketch17.addGeometry(Part.Circle(App.Vector(41, -36, 0), App.Vector(0, 0, 1), 1.5), False)
sketch17.addConstraint([
    Sketcher.Constraint("Diameter", 0, 3.0),
    Sketcher.Constraint("DistanceX", -1, 1, 0, 3, 41.0),
    Sketcher.Constraint("DistanceY", 0, 3, -1, 1, 36.0),
])
pocket5 = doc.addObject("PartDesign::Pocket", "Pocket004")
body.addObject(pocket5)
pocket5.Profile = sketch17
pocket5.Type = "UpToFirst"

# Sketch on XY plane
sketch18 = doc.addObject("Sketcher::SketchObject", "Sketch017")
body.addObject(sketch18)
sketch18.AttachmentSupport = (doc.XY_Plane, [""])
sketch18.MapMode = "FlatFace"
sketch18.AttachmentOffset = App.Placement(App.Vector(0, 0, 0.1), App.Rotation())
sketch18.addGeometry(Part.Circle(App.Vector(34, 30, 0), App.Vector(0, 0, 1), 5), False)
sketch18.addConstraint([
    Sketcher.Constraint("Diameter", 0, 10.0),
    Sketcher.Constraint("DistanceY", -1, 1, 0, 3, 30.0),
    Sketcher.Constraint("DistanceX", -1, 1, 0, 3, 34.4),
])
pad11 = doc.addObject("PartDesign::Pad", "Pad010")
body.addObject(pad11)
pad11.Profile = sketch18
pad11.Length = 7.5
pad11.Reversed = True

# Sketch on XY plane
sketch19 = doc.addObject("Sketcher::SketchObject", "Sketch018")
body.addObject(sketch19)
sketch19.AttachmentSupport = (doc.XY_Plane, [""])
sketch19.MapMode = "FlatFace"
sketch19.AttachmentOffset = App.Placement(App.Vector(0, 0, 8.1), App.Rotation())
sketch19.addGeometry(Part.Circle(App.Vector(34, 30, 0), App.Vector(0, 0, 1), 9), False)
sketch19.addConstraint([
    Sketcher.Constraint("Diameter", 0, 18.0),
    Sketcher.Constraint("DistanceY", -1, 1, 0, 3, 30.0),
    Sketcher.Constraint("DistanceX", -1, 1, 0, 3, 34.4),
])
pad12 = doc.addObject("PartDesign::Pad", "Pad011")
body.addObject(pad12)
pad12.Profile = sketch19
pad12.Length = 8
pad12.Reversed = True

# Sketch on XY plane
sketch20 = doc.addObject("Sketcher::SketchObject", "Sketch019")
body.addObject(sketch20)
sketch20.AttachmentSupport = (doc.XY_Plane, [""])
sketch20.MapMode = "FlatFace"
sketch20.AttachmentOffset = App.Placement(App.Vector(0, 0, 4.1), App.Rotation())
sketch20.addGeometry(Part.Circle(App.Vector(34.4, 30, 0), App.Vector(0, 0, 1), 1.2), False)
sketch20.addConstraint([
    Sketcher.Constraint("Diameter", 0, 2.5),
    Sketcher.Constraint("DistanceY", -1, 1, 0, 3, 30.0),
    Sketcher.Constraint("DistanceX", -1, 1, 0, 3, 34.4),
])
pocket6 = doc.addObject("PartDesign::Pocket", "Pocket005")
body.addObject(pocket6)
pocket6.Profile = sketch20
pocket6.Length = 4
pocket6.Reversed = True

# Sketch on XY plane
sketch21 = doc.addObject("Sketcher::SketchObject", "Sketch020")
body.addObject(sketch21)
sketch21.AttachmentSupport = (doc.XY_Plane, [""])
sketch21.MapMode = "FlatFace"
sketch21.AttachmentOffset = App.Placement(App.Vector(0, 0, -32.6), App.Rotation())
sketch21.addGeometry([
    Part.LineSegment(App.Vector(47, 41, 0), App.Vector(47, 17, 0)),
    Part.LineSegment(App.Vector(47, 17, 0), App.Vector(22, 17, 0)),
    Part.LineSegment(App.Vector(22, 17, 0), App.Vector(22, 41, 0)),
    Part.LineSegment(App.Vector(22, 41, 0), App.Vector(47, 41, 0)),
], False)
sketch21.addConstraint([
    Sketcher.Constraint("Coincident", 0, 2, 1, 1),
    Sketcher.Constraint("Coincident", 1, 2, 2, 1),
    Sketcher.Constraint("Coincident", 2, 2, 3, 1),
    Sketcher.Constraint("Coincident", 3, 2, 0, 1),
    Sketcher.Constraint("Vertical", 0),
    Sketcher.Constraint("Horizontal", 1),
    Sketcher.Constraint("Vertical", 2),
    Sketcher.Constraint("Horizontal", 3),
    Sketcher.Constraint("DistanceX", 1, 2, 1, 1, 25.2),
    Sketcher.Constraint("DistanceX", -1, 1, 0, 2, 47.0),
    Sketcher.Constraint("DistanceY", -1, 1, 2, 2, 40.7),
    Sketcher.Constraint("DistanceY", 0, 2, 0, 1, 23.393647),
])
pocket7 = doc.addObject("PartDesign::Pocket", "Pocket006")
body.addObject(pocket7)
pocket7.Profile = sketch21
pocket7.Type = "ThroughAll"

doc.recompute()
